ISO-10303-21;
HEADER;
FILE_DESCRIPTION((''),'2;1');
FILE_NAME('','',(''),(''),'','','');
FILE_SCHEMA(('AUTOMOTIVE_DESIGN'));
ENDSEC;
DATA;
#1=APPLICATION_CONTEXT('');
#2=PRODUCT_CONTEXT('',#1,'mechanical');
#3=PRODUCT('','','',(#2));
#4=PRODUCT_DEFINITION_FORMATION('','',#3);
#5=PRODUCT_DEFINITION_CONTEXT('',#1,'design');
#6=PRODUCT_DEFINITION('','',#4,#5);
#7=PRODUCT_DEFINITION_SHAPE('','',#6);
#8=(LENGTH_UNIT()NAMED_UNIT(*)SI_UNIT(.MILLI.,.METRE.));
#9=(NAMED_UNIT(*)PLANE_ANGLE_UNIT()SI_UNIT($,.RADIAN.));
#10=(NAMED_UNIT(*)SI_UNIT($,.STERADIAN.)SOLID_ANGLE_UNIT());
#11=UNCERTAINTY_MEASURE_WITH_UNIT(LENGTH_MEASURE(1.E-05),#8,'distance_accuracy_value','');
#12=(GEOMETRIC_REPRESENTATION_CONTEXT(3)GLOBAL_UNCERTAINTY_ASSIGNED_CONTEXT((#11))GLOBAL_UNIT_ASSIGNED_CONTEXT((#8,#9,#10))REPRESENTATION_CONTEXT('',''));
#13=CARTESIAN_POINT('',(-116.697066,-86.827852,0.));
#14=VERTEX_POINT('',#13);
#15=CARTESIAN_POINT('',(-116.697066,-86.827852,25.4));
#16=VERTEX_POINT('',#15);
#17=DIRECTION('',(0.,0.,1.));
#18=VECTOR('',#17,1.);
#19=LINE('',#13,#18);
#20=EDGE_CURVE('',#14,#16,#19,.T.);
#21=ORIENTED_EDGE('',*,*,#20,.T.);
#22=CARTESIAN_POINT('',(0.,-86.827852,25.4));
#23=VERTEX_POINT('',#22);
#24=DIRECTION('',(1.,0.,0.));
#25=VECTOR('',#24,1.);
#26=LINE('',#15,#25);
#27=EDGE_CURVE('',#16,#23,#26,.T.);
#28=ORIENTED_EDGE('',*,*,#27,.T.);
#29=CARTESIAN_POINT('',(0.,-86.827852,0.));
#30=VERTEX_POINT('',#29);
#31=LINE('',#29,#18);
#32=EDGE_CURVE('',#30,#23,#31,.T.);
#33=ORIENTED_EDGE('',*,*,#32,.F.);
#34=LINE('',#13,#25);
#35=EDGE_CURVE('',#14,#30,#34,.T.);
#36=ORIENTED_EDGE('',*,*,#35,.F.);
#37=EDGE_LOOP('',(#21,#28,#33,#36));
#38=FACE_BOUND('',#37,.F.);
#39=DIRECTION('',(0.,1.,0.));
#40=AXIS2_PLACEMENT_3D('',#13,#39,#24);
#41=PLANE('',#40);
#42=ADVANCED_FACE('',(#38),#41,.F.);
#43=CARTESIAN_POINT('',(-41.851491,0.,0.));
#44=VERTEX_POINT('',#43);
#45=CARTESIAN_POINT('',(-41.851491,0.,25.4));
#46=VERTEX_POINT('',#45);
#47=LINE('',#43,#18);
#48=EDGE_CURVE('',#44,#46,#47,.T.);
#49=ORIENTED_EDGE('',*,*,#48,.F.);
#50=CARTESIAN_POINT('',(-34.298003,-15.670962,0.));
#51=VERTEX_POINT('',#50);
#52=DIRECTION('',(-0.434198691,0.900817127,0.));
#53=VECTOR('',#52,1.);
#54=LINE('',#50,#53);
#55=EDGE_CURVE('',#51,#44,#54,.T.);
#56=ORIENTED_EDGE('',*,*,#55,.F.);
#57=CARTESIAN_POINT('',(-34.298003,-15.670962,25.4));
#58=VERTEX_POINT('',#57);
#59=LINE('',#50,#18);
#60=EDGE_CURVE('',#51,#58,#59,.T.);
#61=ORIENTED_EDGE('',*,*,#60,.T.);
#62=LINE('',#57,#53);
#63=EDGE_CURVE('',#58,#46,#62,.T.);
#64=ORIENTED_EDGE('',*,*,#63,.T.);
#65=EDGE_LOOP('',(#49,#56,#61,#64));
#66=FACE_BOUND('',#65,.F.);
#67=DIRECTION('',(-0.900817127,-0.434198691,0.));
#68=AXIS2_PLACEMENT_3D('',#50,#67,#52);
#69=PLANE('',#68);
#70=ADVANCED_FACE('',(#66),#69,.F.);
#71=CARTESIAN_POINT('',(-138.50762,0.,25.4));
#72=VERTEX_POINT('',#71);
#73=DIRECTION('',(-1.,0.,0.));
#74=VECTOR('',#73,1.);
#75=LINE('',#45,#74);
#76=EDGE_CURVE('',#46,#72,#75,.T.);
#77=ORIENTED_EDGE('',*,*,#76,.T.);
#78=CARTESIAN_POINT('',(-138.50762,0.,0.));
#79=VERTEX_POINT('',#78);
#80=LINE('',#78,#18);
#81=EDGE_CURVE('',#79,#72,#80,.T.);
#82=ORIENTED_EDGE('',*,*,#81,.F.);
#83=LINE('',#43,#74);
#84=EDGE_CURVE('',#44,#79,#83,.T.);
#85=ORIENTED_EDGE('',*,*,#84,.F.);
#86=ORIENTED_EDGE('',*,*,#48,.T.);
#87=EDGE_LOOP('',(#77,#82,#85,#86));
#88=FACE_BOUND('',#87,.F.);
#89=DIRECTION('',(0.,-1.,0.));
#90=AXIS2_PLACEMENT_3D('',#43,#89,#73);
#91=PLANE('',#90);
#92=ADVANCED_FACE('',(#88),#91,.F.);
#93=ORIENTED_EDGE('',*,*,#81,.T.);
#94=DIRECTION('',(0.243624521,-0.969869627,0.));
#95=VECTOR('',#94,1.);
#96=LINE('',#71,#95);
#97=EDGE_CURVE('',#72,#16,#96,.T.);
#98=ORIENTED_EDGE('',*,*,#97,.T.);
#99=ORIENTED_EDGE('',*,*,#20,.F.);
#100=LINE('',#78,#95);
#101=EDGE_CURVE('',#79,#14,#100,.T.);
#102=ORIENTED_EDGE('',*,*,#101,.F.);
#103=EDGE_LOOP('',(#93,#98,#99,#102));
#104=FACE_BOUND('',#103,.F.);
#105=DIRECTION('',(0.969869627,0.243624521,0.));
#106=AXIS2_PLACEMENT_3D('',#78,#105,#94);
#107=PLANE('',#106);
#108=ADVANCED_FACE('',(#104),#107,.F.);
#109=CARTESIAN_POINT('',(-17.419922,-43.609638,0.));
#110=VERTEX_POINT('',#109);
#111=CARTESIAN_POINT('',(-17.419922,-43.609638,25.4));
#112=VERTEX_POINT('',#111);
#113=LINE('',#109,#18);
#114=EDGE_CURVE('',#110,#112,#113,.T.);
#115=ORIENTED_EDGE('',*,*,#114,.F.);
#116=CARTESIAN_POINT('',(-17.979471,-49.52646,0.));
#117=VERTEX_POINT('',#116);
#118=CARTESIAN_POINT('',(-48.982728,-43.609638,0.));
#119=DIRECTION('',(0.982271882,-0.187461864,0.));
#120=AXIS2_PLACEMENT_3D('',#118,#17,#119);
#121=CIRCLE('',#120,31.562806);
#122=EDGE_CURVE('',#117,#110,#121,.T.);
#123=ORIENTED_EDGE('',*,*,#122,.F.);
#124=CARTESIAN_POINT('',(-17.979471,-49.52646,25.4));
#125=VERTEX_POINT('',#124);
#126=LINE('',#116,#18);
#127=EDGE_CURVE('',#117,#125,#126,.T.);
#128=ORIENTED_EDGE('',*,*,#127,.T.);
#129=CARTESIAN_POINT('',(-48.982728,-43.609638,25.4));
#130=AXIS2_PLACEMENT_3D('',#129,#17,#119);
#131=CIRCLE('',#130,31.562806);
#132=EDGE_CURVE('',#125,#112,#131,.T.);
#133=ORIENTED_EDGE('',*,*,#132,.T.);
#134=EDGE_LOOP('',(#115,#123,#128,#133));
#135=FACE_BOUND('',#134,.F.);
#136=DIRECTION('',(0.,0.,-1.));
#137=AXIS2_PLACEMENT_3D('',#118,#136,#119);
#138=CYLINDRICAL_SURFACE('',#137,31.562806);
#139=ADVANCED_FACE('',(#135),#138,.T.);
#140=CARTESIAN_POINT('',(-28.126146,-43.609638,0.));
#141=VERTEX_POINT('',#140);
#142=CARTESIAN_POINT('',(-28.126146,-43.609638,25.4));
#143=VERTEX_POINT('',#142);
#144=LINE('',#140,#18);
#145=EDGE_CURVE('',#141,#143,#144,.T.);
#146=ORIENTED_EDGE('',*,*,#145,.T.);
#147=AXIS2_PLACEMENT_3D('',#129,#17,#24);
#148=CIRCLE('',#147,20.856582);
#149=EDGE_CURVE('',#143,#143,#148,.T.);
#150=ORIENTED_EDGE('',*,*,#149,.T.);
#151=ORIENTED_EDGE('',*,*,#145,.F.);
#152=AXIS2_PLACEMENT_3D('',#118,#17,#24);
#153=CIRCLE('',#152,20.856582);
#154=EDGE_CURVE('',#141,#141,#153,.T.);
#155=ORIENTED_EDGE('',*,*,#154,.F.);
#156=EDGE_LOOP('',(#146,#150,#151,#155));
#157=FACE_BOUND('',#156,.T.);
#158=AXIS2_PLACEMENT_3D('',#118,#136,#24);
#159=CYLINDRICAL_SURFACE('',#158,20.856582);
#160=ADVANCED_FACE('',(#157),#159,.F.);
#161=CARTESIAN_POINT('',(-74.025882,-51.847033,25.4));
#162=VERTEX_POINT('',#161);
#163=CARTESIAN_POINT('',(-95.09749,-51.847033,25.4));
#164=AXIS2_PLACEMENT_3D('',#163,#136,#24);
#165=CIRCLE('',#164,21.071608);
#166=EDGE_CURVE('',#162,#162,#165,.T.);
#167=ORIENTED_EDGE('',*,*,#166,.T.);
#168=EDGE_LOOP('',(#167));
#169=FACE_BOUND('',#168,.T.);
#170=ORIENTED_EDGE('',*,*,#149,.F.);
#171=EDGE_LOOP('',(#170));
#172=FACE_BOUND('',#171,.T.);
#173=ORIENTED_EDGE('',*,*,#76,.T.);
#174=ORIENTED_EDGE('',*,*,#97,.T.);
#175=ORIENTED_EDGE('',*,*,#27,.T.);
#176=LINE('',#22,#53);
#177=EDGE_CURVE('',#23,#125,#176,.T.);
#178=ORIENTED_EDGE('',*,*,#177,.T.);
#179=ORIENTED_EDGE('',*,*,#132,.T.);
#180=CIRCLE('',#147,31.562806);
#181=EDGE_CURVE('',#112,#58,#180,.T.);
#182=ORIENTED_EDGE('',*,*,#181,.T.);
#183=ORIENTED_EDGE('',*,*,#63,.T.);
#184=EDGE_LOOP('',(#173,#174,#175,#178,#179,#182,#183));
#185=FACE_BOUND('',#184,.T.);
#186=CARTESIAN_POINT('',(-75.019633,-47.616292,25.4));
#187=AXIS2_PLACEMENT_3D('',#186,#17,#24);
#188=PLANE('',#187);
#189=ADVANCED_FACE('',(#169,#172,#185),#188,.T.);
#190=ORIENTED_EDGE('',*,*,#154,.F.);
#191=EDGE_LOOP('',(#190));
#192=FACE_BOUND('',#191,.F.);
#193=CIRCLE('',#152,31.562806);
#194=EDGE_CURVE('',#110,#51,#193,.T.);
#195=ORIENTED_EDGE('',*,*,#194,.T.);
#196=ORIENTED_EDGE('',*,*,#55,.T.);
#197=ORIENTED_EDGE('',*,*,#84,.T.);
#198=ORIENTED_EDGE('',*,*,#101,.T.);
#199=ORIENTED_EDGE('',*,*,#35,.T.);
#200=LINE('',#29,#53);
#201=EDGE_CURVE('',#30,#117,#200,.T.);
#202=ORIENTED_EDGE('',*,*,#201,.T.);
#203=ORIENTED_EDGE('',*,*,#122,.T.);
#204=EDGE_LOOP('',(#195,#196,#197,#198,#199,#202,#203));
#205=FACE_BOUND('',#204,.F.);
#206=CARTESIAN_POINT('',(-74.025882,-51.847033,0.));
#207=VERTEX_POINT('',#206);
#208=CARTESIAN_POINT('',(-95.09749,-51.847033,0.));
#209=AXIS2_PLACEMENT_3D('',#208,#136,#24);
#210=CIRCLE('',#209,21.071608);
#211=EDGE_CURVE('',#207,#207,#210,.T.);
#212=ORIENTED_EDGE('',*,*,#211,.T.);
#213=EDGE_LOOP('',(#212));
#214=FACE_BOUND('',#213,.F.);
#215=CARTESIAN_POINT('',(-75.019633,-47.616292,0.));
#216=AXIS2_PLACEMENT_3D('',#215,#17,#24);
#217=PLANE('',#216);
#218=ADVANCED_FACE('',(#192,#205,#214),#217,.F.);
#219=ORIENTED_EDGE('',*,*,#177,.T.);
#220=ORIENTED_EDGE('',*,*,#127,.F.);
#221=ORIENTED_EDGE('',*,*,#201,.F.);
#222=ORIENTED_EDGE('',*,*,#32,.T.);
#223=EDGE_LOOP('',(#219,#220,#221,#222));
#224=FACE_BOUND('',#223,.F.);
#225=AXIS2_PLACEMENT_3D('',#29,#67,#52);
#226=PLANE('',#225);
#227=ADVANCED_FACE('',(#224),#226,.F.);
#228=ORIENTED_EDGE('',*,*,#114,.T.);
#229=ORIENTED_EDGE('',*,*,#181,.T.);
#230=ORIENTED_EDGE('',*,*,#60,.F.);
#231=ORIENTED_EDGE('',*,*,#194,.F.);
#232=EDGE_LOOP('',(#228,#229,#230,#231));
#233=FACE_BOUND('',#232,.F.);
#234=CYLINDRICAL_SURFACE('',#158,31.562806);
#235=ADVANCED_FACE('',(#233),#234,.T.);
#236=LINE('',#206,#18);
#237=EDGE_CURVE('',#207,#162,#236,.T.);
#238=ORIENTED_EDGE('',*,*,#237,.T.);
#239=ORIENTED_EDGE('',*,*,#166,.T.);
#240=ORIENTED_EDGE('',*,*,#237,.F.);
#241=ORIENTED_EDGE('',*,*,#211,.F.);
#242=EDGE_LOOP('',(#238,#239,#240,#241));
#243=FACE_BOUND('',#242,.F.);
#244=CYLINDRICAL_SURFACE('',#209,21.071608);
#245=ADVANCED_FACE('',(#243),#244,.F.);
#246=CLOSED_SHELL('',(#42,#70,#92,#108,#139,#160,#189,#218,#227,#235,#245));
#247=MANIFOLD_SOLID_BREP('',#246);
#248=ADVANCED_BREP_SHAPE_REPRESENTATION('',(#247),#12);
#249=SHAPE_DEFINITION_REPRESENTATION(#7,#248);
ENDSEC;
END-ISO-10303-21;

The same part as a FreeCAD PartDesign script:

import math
import FreeCAD as App
import Part
import Sketcher
from FreeCAD import Vector
Q = App.Units.Quantity

doc = App.newDocument("Part")
body = doc.addObject("PartDesign::Body", "Body")

# Sketch on XY plane
sketch1 = body.newObject("Sketcher::SketchObject", "Sketch")
sketch1.AttachmentSupport = (doc.getObject("XY_Plane"), [""])
sketch1.MapMode = "FlatFace"
sketch1.addGeometry(Part.LineSegment(Vector(-42, 0, 0), Vector(-139, 0, 0)), False)
sketch1.addGeometry(Part.LineSegment(Vector(-139, 0, 0), Vector(-117, -87, 0)), False)
sketch1.addGeometry(Part.LineSegment(Vector(-117, -87, 0), Vector(0, -87, 0)), False)
sketch1.addGeometry(Part.LineSegment(Vector(0, -87, 0), Vector(-18, -50, 0)), False)
sketch1.addGeometry(Part.ArcOfCircle(Part.Circle(Vector(-49, -44, 0), Vector(0, 0, 1), 32), math.radians(-10.8), math.radians(0)), False)
sketch1.addGeometry(Part.ArcOfCircle(Part.Circle(Vector(-49, -44, 0), Vector(0, 0, 1), 32), math.radians(0), math.radians(62)), False)
sketch1.addGeometry(Part.LineSegment(Vector(-34, -16, 0), Vector(-42, 0, 0)), False)
sketch1.addGeometry(Part.Circle(Vector(-95, -52, 0), Vector(0, 0, 1), 21), False)
sketch1.addGeometry(Part.Circle(Vector(-49, -44, 0), Vector(0, 0, 1), 21), False)
sketch1.addConstraint(Sketcher.Constraint("Coincident", 0, 2, 1, 1))
sketch1.addConstraint(Sketcher.Constraint("Coincident", 1, 2, 2, 1))
sketch1.addConstraint(Sketcher.Constraint("Coincident", 2, 2, 3, 1))
sketch1.addConstraint(Sketcher.Constraint("Coincident", 3, 2, 4, 1))
sketch1.addConstraint(Sketcher.Constraint("Tangent", 4, 2, 5, 1))
sketch1.addConstraint(Sketcher.Constraint("Coincident", 5, 2, 6, 1))
sketch1.addConstraint(Sketcher.Constraint("Coincident", 6, 2, 0, 1))
sketch1.addConstraint(Sketcher.Constraint("Horizontal", 0))
sketch1.addConstraint(Sketcher.Constraint("Horizontal", 2))
sketch1.addConstraint(Sketcher.Constraint("Coincident", 8, 3, 4, 3))
sketch1.addConstraint(Sketcher.Constraint("Equal", 4, 5))
sketch1.addConstraint(Sketcher.Constraint("PointOnObject", 0, 2, -1))
sketch1.addConstraint(Sketcher.Constraint("PointOnObject", 2, 2, -2))
sketch1.addConstraint(Sketcher.Constraint("Parallel", 3, 6))
sketch1.addConstraint(Sketcher.Constraint("Horizontal", 8, 3, 4, 2))
sketch1.addConstraint(Sketcher.Constraint("Diameter", 7, 42.143216))
sketch1.addConstraint(Sketcher.Constraint("Diameter", 8, 41.713164))
sketch1.addConstraint(Sketcher.Constraint("Radius", 4, 31.562806))
sketch1.addConstraint(Sketcher.Constraint("DistanceX", 0, 2, 0, 1, 96.656129))
sketch1.addConstraint(Sketcher.Constraint("DistanceY", 3, 2, 5, 2, 33.855498))
sketch1.addConstraint(Sketcher.Constraint("DistanceX", 2, 1, 2, 2, 116.697066))
sketch1.addConstraint(Sketcher.Constraint("DistanceX", 4, 3, -1, 1, 48.982728))
sketch1.addConstraint(Sketcher.Constraint("DistanceX", 7, 3, -1, 1, 95.09749))
sketch1.addConstraint(Sketcher.Constraint("DistanceX", 0, 2, -1, 1, 138.50762))
sketch1.addConstraint(Sketcher.Constraint("DistanceY", 1, 2, -1, 1, 86.827852))
sketch1.addConstraint(Sketcher.Constraint("DistanceX", 3, 2, -1, 1, 17.979471))
sketch1.addConstraint(Sketcher.Constraint("DistanceY", 1, 2, 7, 3, 34.980819))
pad1 = body.newObject("PartDesign::Pad", "Pad")
pad1.Profile = sketch1
pad1.Length = Q("1 in")

doc.recompute()
